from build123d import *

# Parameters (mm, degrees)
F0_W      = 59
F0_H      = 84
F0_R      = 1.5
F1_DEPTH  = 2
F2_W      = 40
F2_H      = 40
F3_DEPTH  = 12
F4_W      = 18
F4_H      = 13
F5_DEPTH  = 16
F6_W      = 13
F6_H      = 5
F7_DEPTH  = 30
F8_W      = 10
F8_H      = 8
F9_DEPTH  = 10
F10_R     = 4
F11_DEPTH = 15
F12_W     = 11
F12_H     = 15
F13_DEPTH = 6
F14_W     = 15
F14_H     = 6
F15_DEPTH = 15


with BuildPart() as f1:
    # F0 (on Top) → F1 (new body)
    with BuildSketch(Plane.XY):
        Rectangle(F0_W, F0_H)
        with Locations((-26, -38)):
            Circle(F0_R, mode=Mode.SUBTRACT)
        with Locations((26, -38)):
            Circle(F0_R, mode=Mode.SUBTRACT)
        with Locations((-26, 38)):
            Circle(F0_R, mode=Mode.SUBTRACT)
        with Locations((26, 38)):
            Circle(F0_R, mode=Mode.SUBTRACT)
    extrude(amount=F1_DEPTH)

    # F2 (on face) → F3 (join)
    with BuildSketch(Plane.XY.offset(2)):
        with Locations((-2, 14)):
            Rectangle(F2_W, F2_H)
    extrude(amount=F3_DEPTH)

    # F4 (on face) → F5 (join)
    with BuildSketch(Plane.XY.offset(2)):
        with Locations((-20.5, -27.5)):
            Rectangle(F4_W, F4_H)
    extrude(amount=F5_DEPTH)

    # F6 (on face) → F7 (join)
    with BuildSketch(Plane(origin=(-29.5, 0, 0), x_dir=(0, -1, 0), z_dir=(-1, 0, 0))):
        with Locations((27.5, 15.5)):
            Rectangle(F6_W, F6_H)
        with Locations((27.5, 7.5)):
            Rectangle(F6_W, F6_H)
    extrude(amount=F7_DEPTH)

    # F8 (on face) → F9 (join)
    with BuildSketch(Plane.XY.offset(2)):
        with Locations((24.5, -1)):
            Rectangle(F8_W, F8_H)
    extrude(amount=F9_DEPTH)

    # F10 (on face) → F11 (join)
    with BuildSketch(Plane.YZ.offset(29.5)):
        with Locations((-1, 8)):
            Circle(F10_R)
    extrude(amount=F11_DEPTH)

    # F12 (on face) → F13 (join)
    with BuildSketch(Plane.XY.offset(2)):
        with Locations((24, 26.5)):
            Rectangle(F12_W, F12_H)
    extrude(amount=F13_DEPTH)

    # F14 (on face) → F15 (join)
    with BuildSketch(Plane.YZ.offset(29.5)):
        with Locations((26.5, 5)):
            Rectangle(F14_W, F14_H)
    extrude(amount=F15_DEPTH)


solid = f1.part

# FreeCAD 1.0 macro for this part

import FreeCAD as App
import Part
import Sketcher
Q = App.Units.Quantity


def add_polygon(sketch, points):
    """Adds a closed chain of lines whose ends are joined by coincident constraints."""
    first, n = sketch.GeometryCount, len(points)
    for a, b in zip(points, points[1:] + points[:1]):
        sketch.addGeometry(Part.LineSegment(App.Vector(*a, 0), App.Vector(*b, 0)), False)
    for i in range(n):
        sketch.addConstraint(Sketcher.Constraint("Coincident", first + i, 2, first + (i + 1) % n, 1))

doc = App.newDocument("Part")
params = doc.addObject("Spreadsheet::Sheet", "Params")
for row, (alias, value) in enumerate([
    ("sketch1_diameter", "3 mm"),
    ("sketch1_width", "59 mm"),
    ("sketch1_height", "84 mm"),
    ("pad1_length", "2 mm"),
    ("sketch2_width", "40 mm"),
    ("pad2_length", "12 mm"),
    ("sketch3_width", "18 mm"),
    ("sketch3_height", "13 mm"),
    ("pad3_length", "16 mm"),
    ("sketch4_width", "13 mm"),
    ("sketch4_height", "5 mm"),
    ("pad4_length", "30 mm"),
    ("sketch5_width", "10 mm"),
    ("sketch5_height", "8 mm"),
    ("pad5_length", "10 mm"),
    ("sketch6_diameter", "8 mm"),
    ("pad6_length", "15 mm"),
    ("sketch7_width", "11 mm"),
    ("sketch7_height", "15 mm"),
    ("pad7_length", "6 mm"),
    ("sketch8_width", "15 mm"),
    ("sketch8_height", "6 mm"),
    ("pad8_length", "15 mm"),
], start=1):
    params.set(f"A{row}", alias)
    params.set(f"B{row}", "=" + value)
    params.setAlias(f"B{row}", alias)

body = doc.addObject("PartDesign::Body", "Body")

# Sketch on XY plane
sketch1 = body.newObject("Sketcher::SketchObject", "Sketch")
sketch1.AttachmentSupport = (doc.getObject("XY_Plane"), [""])
sketch1.MapMode = "FlatFace"
add_polygon(sketch1, [(-29.5, 42), (-29.5, -42), (29.5, -42), (29.5, 42)])  # lines 0-3
sketch1.addGeometry(Part.Circle(App.Vector(-26, -38, 0), App.Vector(0, 0, 1), 1.5), False)  # 4
sketch1.addGeometry(Part.Circle(App.Vector(26, -38, 0), App.Vector(0, 0, 1), 1.5), False)  # 5
sketch1.addGeometry(Part.Circle(App.Vector(-26, 38, 0), App.Vector(0, 0, 1), 1.5), False)  # 6
sketch1.addGeometry(Part.Circle(App.Vector(26, 38, 0), App.Vector(0, 0, 1), 1.5), False)  # 7
sketch1.addConstraint([
    Sketcher.Constraint("Vertical", 0),
    Sketcher.Constraint("Horizontal", 1),
    Sketcher.Constraint("Vertical", 2),
    Sketcher.Constraint("Horizontal", 3),
    Sketcher.Constraint("Equal", 4, 5),
    Sketcher.Constraint("Equal", 5, 6),
    Sketcher.Constraint("Equal", 6, 7),
    Sketcher.Constraint("Symmetric", 5, 3, 6, 3, -1, 1),
    Sketcher.Constraint("Symmetric", 4, 3, 7, 3, -1, 1),
    Sketcher.Constraint("Symmetric", 0, 2, 2, 2, -1, 1),
    Sketcher.Constraint("Symmetric", 4, 3, 5, 3, -2),
    Sketcher.Constraint("Diameter", 4, Q("3 mm")),
    Sketcher.Constraint("DistanceX", 1, 1, 1, 2, Q("59 mm")),
    Sketcher.Constraint("DistanceY", 0, 2, 0, 1, Q("84 mm")),
    Sketcher.Constraint("DistanceX", 4, 3, -1, 1, Q("26 mm")),
    Sketcher.Constraint("DistanceY", 4, 3, -1, 1, Q("38 mm")),
])
sketch1.setExpression("Constraints[15]", "Params.sketch1_diameter")
sketch1.setExpression("Constraints[16]", "Params.sketch1_width")
sketch1.setExpression("Constraints[17]", "Params.sketch1_height")
pad1 = body.newObject("PartDesign::Pad", "Pad")
pad1.Profile = sketch1
pad1.setExpression("Length", "Params.pad1_length")

# Sketch on XY plane
sketch2 = body.newObject("Sketcher::SketchObject", "Sketch001")
sketch2.AttachmentSupport = (doc.getObject("XY_Plane"), [""])
sketch2.MapMode = "FlatFace"
sketch2.AttachmentOffset = App.Placement(App.Vector(0, 0, 2), App.Rotation())
add_polygon(sketch2, [(-22, 34), (-22, -6), (18, -6), (18, 34)])  # lines 0-3
sketch2.addConstraint([
    Sketcher.Constraint("Vertical", 0),
    Sketcher.Constraint("Horizontal", 1),
    Sketcher.Constraint("Vertical", 2),
    Sketcher.Constraint("Horizontal", 3),
    Sketcher.Constraint("Equal", 3, 0),
    Sketcher.Constraint("DistanceX", 1, 1, 1, 2, Q("40 mm")),
    Sketcher.Constraint("DistanceX", 0, 2, -1, 1, Q("22 mm")),
    Sketcher.Constraint("DistanceY", 0, 2, -1, 1, Q("6 mm")),
])
sketch2.setExpression("Constraints[9]", "Params.sketch2_width")
pad2 = body.newObject("PartDesign::Pad", "Pad001")
pad2.Profile = sketch2
pad2.setExpression("Length", "Params.pad2_length")

# Sketch on XY plane
sketch3 = body.newObject("Sketcher::SketchObject", "Sketch002")
sketch3.AttachmentSupport = (doc.getObject("XY_Plane"), [""])
sketch3.MapMode = "FlatFace"
sketch3.AttachmentOffset = App.Placement(App.Vector(0, 0, 2), App.Rotation())
add_polygon(sketch3, [(-29.5, -21), (-29.5, -34), (-11.5, -34), (-11.5, -21)])  # lines 0-3
sketch3.addConstraint([
    Sketcher.Constraint("Vertical", 0),
    Sketcher.Constraint("Horizontal", 1),
    Sketcher.Constraint("Vertical", 2),
    Sketcher.Constraint("Horizontal", 3),
    Sketcher.Constraint("DistanceX", 1, 1, 1, 2, Q("18 mm")),
    Sketcher.Constraint("DistanceY", 0, 2, 0, 1, Q("13 mm")),
    Sketcher.Constraint("DistanceY", 0, 2, -1, 1, Q("34 mm")),
    Sketcher.Constraint("DistanceX", 0, 2, -1, 1, Q("29.5 mm")),
])
sketch3.setExpression("Constraints[8]", "Params.sketch3_width")
sketch3.setExpression("Constraints[9]", "Params.sketch3_height")
pad3 = body.newObject("PartDesign::Pad", "Pad002")
pad3.Profile = sketch3
pad3.setExpression("Length", "Params.pad3_length")

# Sketch on YZ plane
sketch4 = body.newObject("Sketcher::SketchObject", "Sketch003")
sketch4.AttachmentSupport = (doc.getObject("YZ_Plane"), [""])
sketch4.MapMode = "FlatFace"
sketch4.AttachmentOffset = App.Placement(App.Vector(0, 0, -29.5), App.Rotation())
add_polygon(sketch4, [(-21, 18), (-21, 13), (-34, 13), (-34, 18)])  # lines 0-3
add_polygon(sketch4, [(-21, 10), (-21, 5), (-34, 5), (-34, 10)])  # lines 4-7
sketch4.addConstraint([
    Sketcher.Constraint("Vertical", 0),
    Sketcher.Constraint("Horizontal", 1),
    Sketcher.Constraint("Vertical", 2),
    Sketcher.Constraint("Horizontal", 3),
    Sketcher.Constraint("Vertical", 4),
    Sketcher.Constraint("Horizontal", 5),
    Sketcher.Constraint("Vertical", 6),
    Sketcher.Constraint("Horizontal", 7),
    Sketcher.Constraint("Vertical", 3, 2, 4, 2),
    Sketcher.Constraint("Vertical", 2, 2, 5, 2),
    Sketcher.Constraint("Equal", 2, 4),
    Sketcher.Constraint("DistanceX", 1, 2, 1, 1, Q("13 mm")),
    Sketcher.Constraint("DistanceY", 0, 2, 0, 1, Q("5 mm")),
    Sketcher.Constraint("DistanceX", 0, 2, -1, 1, Q("21 mm")),
    Sketcher.Constraint("DistanceY", -1, 1, 0, 2, Q("13 mm")),
    Sketcher.Constraint("DistanceY", -1, 1, 4, 2, Q("5 mm")),
])
sketch4.setExpression("Constraints[19]", "Params.sketch4_width")
sketch4.setExpression("Constraints[20]", "Params.sketch4_height")
pad4 = body.newObject("PartDesign::Pad", "Pad003")
pad4.Profile = sketch4
pad4.setExpression("Length", "Params.pad4_length")
pad4.Reversed = True

# Sketch on XY plane
sketch5 = body.newObject("Sketcher::SketchObject", "Sketch004")
sketch5.AttachmentSupport = (doc.getObject("XY_Plane"), [""])
sketch5.MapMode = "FlatFace"
sketch5.AttachmentOffset = App.Placement(App.Vector(0, 0, 2), App.Rotation())
add_polygon(sketch5, [(19.5, 3), (19.5, -5), (29.5, -5), (29.5, 3)])  # lines 0-3
sketch5.addConstraint([
    Sketcher.Constraint("Vertical", 0),
    Sketcher.Constraint("Horizontal", 1),
    Sketcher.Constraint("Vertical", 2),
    Sketcher.Constraint("Horizontal", 3),
    Sketcher.Constraint("DistanceX", 1, 1, 1, 2, Q("10 mm")),
    Sketcher.Constraint("DistanceY", 0, 2, 0, 1, Q("8 mm")),
    Sketcher.Constraint("DistanceY", 0, 2, -1, 1, Q("5 mm")),
    Sketcher.Constraint("DistanceX", -1, 1, 0, 2, Q("19.5 mm")),
])
sketch5.setExpression("Constraints[8]", "Params.sketch5_width")
sketch5.setExpression("Constraints[9]", "Params.sketch5_height")
pad5 = body.newObject("PartDesign::Pad", "Pad004")
pad5.Profile = sketch5
pad5.setExpression("Length", "Params.pad5_length")

# Sketch on YZ plane
sketch6 = body.newObject("Sketcher::SketchObject", "Sketch005")
sketch6.AttachmentSupport = (doc.getObject("YZ_Plane"), [""])
sketch6.MapMode = "FlatFace"
sketch6.AttachmentOffset = App.Placement(App.Vector(0, 0, 29.5), App.Rotation())
sketch6.addGeometry(Part.Circle(App.Vector(-1, 8, 0), App.Vector(0, 0, 1), 4), False)
sketch6.addConstraint([
    Sketcher.Constraint("Diameter", 0, Q("8 mm")),
    Sketcher.Constraint("DistanceX", 0, 3, -1, 1, Q("1 mm")),
    Sketcher.Constraint("DistanceY", -1, 1, 0, 3, Q("8 mm")),
])
sketch6.setExpression("Constraints[0]", "Params.sketch6_diameter")
pad6 = body.newObject("PartDesign::Pad", "Pad005")
pad6.Profile = sketch6
pad6.setExpression("Length", "Params.pad6_length")

# Sketch on XY plane
sketch7 = body.newObject("Sketcher::SketchObject", "Sketch006")
sketch7.AttachmentSupport = (doc.getObject("XY_Plane"), [""])
sketch7.MapMode = "FlatFace"
sketch7.AttachmentOffset = App.Placement(App.Vector(0, 0, 2), App.Rotation())
add_polygon(sketch7, [(18.5, 34), (18.5, 19), (29.5, 19), (29.5, 34)])  # lines 0-3
sketch7.addConstraint([
    Sketcher.Constraint("Vertical", 0),
    Sketcher.Constraint("Horizontal", 1),
    Sketcher.Constraint("Vertical", 2),
    Sketcher.Constraint("Horizontal", 3),
    Sketcher.Constraint("DistanceX", 1, 1, 1, 2, Q("11 mm")),
    Sketcher.Constraint("DistanceY", 0, 2, 0, 1, Q("15 mm")),
    Sketcher.Constraint("DistanceY", -1, 1, 0, 2, Q("19 mm")),
    Sketcher.Constraint("DistanceX", -1, 1, 0, 2, Q("18.5 mm")),
])
sketch7.setExpression("Constraints[8]", "Params.sketch7_width")
sketch7.setExpression("Constraints[9]", "Params.sketch7_height")
pad7 = body.newObject("PartDesign::Pad", "Pad006")
pad7.Profile = sketch7
pad7.setExpression("Length", "Params.pad7_length")

# Sketch on YZ plane
sketch8 = body.newObject("Sketcher::SketchObject", "Sketch007")
sketch8.AttachmentSupport = (doc.getObject("YZ_Plane"), [""])
sketch8.MapMode = "FlatFace"
sketch8.AttachmentOffset = App.Placement(App.Vector(0, 0, 29.5), App.Rotation())
add_polygon(sketch8, [(19, 8), (19, 2), (34, 2), (34, 8)])  # lines 0-3
sketch8.addConstraint([
    Sketcher.Constraint("Vertical", 0),
    Sketcher.Constraint("Horizontal", 1),
    Sketcher.Constraint("Vertical", 2),
    Sketcher.Constraint("Horizontal", 3),
    Sketcher.Constraint("DistanceX", 1, 1, 1, 2, Q("15 mm")),
    Sketcher.Constraint("DistanceY", 0, 2, 0, 1, Q("6 mm")),
    Sketcher.Constraint("DistanceX", -1, 1, 0, 2, Q("19 mm")),
    Sketcher.Constraint("DistanceY", -1, 1, 0, 2, Q("2 mm")),
])
sketch8.setExpression("Constraints[8]", "Params.sketch8_width")
sketch8.setExpression("Constraints[9]", "Params.sketch8_height")
pad8 = body.newObject("PartDesign::Pad", "Pad007")
pad8.Profile = sketch8
pad8.setExpression("Length", "Params.pad8_length")

doc.recompute()
